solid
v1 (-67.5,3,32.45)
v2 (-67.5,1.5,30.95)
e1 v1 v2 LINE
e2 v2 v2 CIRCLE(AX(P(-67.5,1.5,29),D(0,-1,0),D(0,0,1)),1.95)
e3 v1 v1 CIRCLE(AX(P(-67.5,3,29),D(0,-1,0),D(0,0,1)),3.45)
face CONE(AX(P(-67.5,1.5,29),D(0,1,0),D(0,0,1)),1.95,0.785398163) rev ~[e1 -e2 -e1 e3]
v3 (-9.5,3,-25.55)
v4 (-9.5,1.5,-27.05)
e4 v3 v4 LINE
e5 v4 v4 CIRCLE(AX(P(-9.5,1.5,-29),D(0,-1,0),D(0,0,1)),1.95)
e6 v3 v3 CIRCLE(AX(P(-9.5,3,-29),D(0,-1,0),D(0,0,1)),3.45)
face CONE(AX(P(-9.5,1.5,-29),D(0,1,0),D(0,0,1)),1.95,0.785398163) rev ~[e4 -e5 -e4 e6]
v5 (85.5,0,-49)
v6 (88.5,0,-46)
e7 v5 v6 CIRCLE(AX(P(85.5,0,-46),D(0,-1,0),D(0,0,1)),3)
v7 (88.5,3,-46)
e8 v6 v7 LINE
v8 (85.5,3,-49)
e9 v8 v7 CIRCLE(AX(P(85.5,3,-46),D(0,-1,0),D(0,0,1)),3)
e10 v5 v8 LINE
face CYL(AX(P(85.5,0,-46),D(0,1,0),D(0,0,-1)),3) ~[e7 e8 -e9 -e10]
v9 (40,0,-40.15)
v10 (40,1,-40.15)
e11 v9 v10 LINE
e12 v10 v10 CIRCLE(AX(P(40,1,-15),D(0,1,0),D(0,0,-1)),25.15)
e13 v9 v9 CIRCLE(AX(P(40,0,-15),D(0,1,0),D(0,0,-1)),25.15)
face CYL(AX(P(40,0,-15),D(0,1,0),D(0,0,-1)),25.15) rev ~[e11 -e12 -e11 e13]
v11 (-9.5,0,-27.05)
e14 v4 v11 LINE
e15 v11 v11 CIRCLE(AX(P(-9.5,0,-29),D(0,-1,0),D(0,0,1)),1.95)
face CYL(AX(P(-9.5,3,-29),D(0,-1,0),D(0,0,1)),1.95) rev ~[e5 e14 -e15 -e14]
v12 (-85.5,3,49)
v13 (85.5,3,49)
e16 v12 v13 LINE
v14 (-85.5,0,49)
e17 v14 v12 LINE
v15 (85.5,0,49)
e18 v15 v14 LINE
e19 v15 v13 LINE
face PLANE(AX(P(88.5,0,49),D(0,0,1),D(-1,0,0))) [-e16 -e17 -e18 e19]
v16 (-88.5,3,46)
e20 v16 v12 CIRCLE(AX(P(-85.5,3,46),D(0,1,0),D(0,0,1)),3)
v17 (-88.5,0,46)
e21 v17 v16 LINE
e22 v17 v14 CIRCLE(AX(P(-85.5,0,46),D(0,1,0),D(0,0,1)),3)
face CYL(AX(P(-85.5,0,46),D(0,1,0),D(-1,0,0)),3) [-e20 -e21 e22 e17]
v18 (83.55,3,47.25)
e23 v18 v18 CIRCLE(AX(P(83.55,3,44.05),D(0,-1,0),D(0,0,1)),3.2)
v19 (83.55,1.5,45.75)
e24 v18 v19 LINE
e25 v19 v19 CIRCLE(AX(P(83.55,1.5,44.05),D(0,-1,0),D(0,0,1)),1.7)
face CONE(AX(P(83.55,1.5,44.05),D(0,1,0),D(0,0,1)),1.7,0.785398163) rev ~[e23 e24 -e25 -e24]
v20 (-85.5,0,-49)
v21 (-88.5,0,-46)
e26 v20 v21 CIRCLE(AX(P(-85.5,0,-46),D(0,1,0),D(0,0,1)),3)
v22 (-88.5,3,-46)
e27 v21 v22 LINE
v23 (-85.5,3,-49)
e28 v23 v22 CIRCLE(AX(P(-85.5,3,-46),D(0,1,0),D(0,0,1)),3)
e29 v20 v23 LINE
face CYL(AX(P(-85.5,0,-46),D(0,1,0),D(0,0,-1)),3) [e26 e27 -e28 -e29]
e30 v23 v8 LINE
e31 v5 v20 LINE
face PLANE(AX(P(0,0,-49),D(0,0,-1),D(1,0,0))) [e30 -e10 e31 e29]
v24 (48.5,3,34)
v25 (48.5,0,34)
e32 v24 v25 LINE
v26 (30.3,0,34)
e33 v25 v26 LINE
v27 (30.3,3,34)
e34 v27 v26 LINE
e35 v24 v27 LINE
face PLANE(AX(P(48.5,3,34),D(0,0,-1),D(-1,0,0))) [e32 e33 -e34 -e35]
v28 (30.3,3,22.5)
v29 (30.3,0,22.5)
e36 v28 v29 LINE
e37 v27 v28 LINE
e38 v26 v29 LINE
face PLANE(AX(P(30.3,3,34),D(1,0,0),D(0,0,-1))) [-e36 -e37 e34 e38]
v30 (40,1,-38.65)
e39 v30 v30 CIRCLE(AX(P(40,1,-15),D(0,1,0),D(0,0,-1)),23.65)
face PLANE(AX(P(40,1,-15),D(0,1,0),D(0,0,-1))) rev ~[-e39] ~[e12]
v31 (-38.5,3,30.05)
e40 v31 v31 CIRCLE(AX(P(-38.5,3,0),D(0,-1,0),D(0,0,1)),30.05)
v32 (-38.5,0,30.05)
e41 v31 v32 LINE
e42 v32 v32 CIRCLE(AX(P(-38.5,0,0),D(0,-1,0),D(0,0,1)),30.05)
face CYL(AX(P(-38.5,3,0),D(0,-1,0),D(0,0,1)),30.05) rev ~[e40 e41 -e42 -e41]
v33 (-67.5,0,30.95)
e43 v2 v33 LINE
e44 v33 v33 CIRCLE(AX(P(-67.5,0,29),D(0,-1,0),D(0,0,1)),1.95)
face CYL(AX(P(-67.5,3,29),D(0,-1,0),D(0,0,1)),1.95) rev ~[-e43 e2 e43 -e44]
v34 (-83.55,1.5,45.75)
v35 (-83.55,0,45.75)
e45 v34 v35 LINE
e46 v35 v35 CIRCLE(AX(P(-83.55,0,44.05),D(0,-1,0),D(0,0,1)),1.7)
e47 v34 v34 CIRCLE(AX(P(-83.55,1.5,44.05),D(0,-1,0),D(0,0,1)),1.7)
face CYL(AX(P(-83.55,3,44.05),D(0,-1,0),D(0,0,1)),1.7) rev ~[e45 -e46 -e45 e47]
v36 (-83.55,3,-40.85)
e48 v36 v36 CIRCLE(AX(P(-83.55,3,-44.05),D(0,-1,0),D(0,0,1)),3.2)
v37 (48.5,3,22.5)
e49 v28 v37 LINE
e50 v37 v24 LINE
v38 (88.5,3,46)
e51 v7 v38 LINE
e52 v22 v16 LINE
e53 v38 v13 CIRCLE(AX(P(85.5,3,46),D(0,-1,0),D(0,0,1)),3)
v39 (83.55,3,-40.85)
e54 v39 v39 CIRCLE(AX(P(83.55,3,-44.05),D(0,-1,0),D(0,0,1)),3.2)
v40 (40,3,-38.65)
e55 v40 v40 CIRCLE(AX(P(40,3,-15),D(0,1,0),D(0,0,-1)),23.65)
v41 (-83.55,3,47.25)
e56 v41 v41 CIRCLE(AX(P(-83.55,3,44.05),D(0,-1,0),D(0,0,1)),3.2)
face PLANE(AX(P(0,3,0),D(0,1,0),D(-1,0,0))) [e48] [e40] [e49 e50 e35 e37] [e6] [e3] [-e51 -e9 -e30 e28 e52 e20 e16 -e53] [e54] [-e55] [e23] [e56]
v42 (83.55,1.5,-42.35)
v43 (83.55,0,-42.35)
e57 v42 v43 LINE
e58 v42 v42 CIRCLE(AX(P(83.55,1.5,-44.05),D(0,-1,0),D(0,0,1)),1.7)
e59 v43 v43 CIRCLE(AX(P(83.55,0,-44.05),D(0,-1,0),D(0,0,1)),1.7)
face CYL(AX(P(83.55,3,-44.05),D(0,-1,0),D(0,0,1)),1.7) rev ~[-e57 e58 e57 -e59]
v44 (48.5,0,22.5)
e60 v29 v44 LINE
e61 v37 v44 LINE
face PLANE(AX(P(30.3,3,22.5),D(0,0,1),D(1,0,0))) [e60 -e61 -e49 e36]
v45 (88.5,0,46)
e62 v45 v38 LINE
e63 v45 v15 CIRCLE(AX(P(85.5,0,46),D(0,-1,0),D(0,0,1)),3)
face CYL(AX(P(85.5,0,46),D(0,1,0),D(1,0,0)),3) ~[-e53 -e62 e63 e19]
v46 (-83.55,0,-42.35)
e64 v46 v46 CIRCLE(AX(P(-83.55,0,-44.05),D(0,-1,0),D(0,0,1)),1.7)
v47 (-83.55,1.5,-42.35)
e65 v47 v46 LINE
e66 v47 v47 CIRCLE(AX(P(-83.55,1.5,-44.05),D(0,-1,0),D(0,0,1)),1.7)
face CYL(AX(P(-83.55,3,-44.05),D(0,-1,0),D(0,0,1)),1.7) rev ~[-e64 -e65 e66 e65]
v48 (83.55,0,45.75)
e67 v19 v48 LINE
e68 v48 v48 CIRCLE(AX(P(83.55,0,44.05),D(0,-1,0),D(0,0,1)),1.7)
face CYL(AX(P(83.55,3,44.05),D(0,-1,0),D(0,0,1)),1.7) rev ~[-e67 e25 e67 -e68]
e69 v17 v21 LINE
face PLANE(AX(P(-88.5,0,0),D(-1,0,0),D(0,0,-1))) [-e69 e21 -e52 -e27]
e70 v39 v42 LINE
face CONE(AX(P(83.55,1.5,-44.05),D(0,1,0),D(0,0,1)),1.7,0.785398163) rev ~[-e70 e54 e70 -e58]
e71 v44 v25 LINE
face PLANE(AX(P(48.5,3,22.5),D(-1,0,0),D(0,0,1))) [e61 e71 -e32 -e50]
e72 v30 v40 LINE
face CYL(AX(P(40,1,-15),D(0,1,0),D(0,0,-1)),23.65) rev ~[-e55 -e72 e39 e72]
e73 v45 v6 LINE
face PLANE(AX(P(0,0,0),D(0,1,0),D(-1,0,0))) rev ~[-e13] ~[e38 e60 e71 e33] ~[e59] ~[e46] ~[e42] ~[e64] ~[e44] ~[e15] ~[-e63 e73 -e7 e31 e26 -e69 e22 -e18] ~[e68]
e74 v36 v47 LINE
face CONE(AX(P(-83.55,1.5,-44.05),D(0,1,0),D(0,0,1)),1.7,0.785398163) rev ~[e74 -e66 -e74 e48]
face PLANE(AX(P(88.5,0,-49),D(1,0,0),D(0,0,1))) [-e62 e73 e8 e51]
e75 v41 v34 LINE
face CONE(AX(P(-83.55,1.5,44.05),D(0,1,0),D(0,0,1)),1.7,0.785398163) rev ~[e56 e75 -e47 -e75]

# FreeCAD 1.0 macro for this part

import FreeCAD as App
import Part
import Sketcher

V = App.Vector
Q = App.Units.Quantity


def edges_at(feature, points):
    """Names of the edges that pass closest to the given points."""
    edges = feature.Shape.Edges
    near = lambda p: min(range(len(edges)), key=lambda i: edges[i].distToShape(Part.Vertex(*p))[0])
    return sorted({f"Edge{near(p) + 1}" for p in points})

doc = App.newDocument("Part")
body = doc.addObject("PartDesign::Body", "Body")

# Sketch on XZ plane
sketch1 = body.newObject("Sketcher::SketchObject", "Sketch")
sketch1.AttachmentSupport = (doc.getObject("XZ_Plane"), [""])
sketch1.MapMode = "FlatFace"
sketch1.addGeometry(Part.LineSegment(V(88, -49, 0), V(-88, -49, 0)), False)
sketch1.addGeometry(Part.LineSegment(V(-88, -49, 0), V(-88, 49, 0)), False)
sketch1.addGeometry(Part.LineSegment(V(-88, 49, 0), V(88, 49, 0)), False)
sketch1.addGeometry(Part.LineSegment(V(88, 49, 0), V(88, -49, 0)), False)
sketch1.addConstraint(Sketcher.Constraint("Coincident", 0, 2, 1, 1))
sketch1.addConstraint(Sketcher.Constraint("Coincident", 1, 2, 2, 1))
sketch1.addConstraint(Sketcher.Constraint("Coincident", 2, 2, 3, 1))
sketch1.addConstraint(Sketcher.Constraint("Coincident", 3, 2, 0, 1))
sketch1.addConstraint(Sketcher.Constraint("Horizontal", 0))
sketch1.addConstraint(Sketcher.Constraint("Vertical", 1))
sketch1.addConstraint(Sketcher.Constraint("Horizontal", 2))
sketch1.addConstraint(Sketcher.Constraint("Vertical", 3))
sketch1.addConstraint(Sketcher.Constraint("Symmetric", 0, 2, 2, 2, -1, 1))
sketch1.addConstraint(Sketcher.Constraint("DistanceX", 0, 2, 0, 1, Q("177 mm")))
sketch1.addConstraint(Sketcher.Constraint("DistanceY", 1, 1, 1, 2, Q("98 mm")))
pad1 = body.newObject("PartDesign::Pad", "Pad")
pad1.Profile = sketch1
pad1.Length = 3
pad1.Reversed = True

# Sketch on XZ plane
sketch2 = body.newObject("Sketcher::SketchObject", "Sketch001")
sketch2.AttachmentSupport = (doc.getObject("XZ_Plane"), [""])
sketch2.MapMode = "FlatFace"
sketch2.AttachmentOffset = App.Placement(V(0, 0, -3), App.Rotation())
sketch2.addGeometry(Part.Circle(V(-83.5, -44, 0), V(0, 0, 1), 1.7), False)
sketch2.addGeometry(Part.Circle(V(-83.5, 44, 0), V(0, 0, 1), 1.7), False)
sketch2.addGeometry(Part.Circle(V(83.5, 44, 0), V(0, 0, 1), 1.7), False)
sketch2.addGeometry(Part.Circle(V(83.5, -44, 0), V(0, 0, 1), 1.7), False)
sketch2.addConstraint(Sketcher.Constraint("Equal", 0, 1))
sketch2.addConstraint(Sketcher.Constraint("Equal", 1, 2))
sketch2.addConstraint(Sketcher.Constraint("Equal", 2, 3))
sketch2.addConstraint(Sketcher.Constraint("Symmetric", 0, 3, 2, 3, -1, 1))
sketch2.addConstraint(Sketcher.Constraint("Symmetric", 1, 3, 3, 3, -1, 1))
sketch2.addConstraint(Sketcher.Constraint("Symmetric", 1, 3, 2, 3, -2))
sketch2.addConstraint(Sketcher.Constraint("Diameter", 0, Q("3.4 mm")))
sketch2.addConstraint(Sketcher.Constraint("DistanceY", 0, 3, 1, 3, Q("88.1 mm")))
sketch2.addConstraint(Sketcher.Constraint("DistanceX", 1, 3, 2, 3, Q("167.1 mm")))
doc.recompute()
hole = body.newObject("PartDesign::Hole", "Hole")
hole.Profile = sketch2
hole.ThreadType = "None"
hole.Diameter = 3.4
hole.DepthType = "ThroughAll"
hole.Reversed = True
doc.recompute()

fillet = body.newObject("PartDesign::Fillet", "Fillet")
fillet.Base = (hole, edges_at(hole, [
    (88.5, 1.5, 49),
    (88.5, 1.5, -49),
    (-88.5, 1.5, 49),
    (-88.5, 1.5, -49),
]))
fillet.Radius = 3

# Sketch on XZ plane
sketch3 = body.newObject("Sketcher::SketchObject", "Sketch002")
sketch3.AttachmentSupport = (doc.getObject("XZ_Plane"), [""])
sketch3.MapMode = "FlatFace"
sketch3.AttachmentOffset = App.Placement(V(0, 0, -3), App.Rotation())
sketch3.addGeometry(Part.Circle(V(-38, 0, 0), V(0, 0, 1), 30), False)
sketch3.addConstraint(Sketcher.Constraint("PointOnObject", 0, 3, -1))
sketch3.addConstraint(Sketcher.Constraint("Diameter", 0, Q("60.1 mm")))
sketch3.addConstraint(Sketcher.Constraint("DistanceX", 0, 3, -1, 1, Q("38.5 mm")))
doc.recompute()
hole2 = body.newObject("PartDesign::Hole", "Hole001")
hole2.Profile = sketch3
hole2.ThreadType = "None"
hole2.Diameter = 60.1
hole2.DepthType = "ThroughAll"
hole2.Reversed = True

# Sketch on XZ plane
sketch4 = body.newObject("Sketcher::SketchObject", "Sketch003")
sketch4.AttachmentSupport = (doc.getObject("XZ_Plane"), [""])
sketch4.MapMode = "FlatFace"
sketch4.addGeometry(Part.Circle(V(40, -15, 0), V(0, 0, 1), 24), False)
sketch4.addConstraint(Sketcher.Constraint("Diameter", 0, Q("47.3 mm")))
sketch4.addConstraint(Sketcher.Constraint("DistanceX", -1, 1, 0, 3, Q("40 mm")))
sketch4.addConstraint(Sketcher.Constraint("DistanceY", 0, 3, -1, 1, Q("15 mm")))
doc.recompute()
hole3 = body.newObject("PartDesign::Hole", "Hole002")
hole3.Profile = sketch4
hole3.ThreadType = "None"
hole3.Diameter = 47.3
hole3.DepthType = "ThroughAll"
hole3.HoleCutType = "Counterbore"
hole3.HoleCutDiameter = 50.3
hole3.HoleCutDepth = 1

# Sketch on XZ plane
sketch5 = body.newObject("Sketcher::SketchObject", "Sketch004")
sketch5.AttachmentSupport = (doc.getObject("XZ_Plane"), [""])
sketch5.MapMode = "FlatFace"
sketch5.AttachmentOffset = App.Placement(V(0, 0, -3), App.Rotation())
sketch5.addGeometry(Part.LineSegment(V(48, 22, 0), V(30, 22, 0)), False)
sketch5.addGeometry(Part.LineSegment(V(30, 22, 0), V(30, 34, 0)), False)
sketch5.addGeometry(Part.LineSegment(V(30, 34, 0), V(48, 34, 0)), False)
sketch5.addGeometry(Part.LineSegment(V(48, 34, 0), V(48, 22, 0)), False)
sketch5.addConstraint(Sketcher.Constraint("Coincident", 0, 2, 1, 1))
sketch5.addConstraint(Sketcher.Constraint("Coincident", 1, 2, 2, 1))
sketch5.addConstraint(Sketcher.Constraint("Coincident", 2, 2, 3, 1))
sketch5.addConstraint(Sketcher.Constraint("Coincident", 3, 2, 0, 1))
sketch5.addConstraint(Sketcher.Constraint("Horizontal", 0))
sketch5.addConstraint(Sketcher.Constraint("Vertical", 1))
sketch5.addConstraint(Sketcher.Constraint("Horizontal", 2))
sketch5.addConstraint(Sketcher.Constraint("Vertical", 3))
sketch5.addConstraint(Sketcher.Constraint("DistanceX", 0, 2, 0, 1, Q("18.2 mm")))
sketch5.addConstraint(Sketcher.Constraint("DistanceY", 1, 1, 1, 2, Q("11.5 mm")))
sketch5.addConstraint(Sketcher.Constraint("DistanceY", -1, 1, 1, 2, Q("34 mm")))
sketch5.addConstraint(Sketcher.Constraint("DistanceX", -1, 1, 0, 2, Q("30.3 mm")))
pocket1 = body.newObject("PartDesign::Pocket", "Pocket")
pocket1.Profile = sketch5
pocket1.Length = 3
pocket1.Reversed = True

# Sketch on XZ plane
sketch6 = body.newObject("Sketcher::SketchObject", "Sketch005")
sketch6.AttachmentSupport = (doc.getObject("XZ_Plane"), [""])
sketch6.MapMode = "FlatFace"
sketch6.AttachmentOffset = App.Placement(V(0, 0, -3), App.Rotation())
sketch6.addGeometry(Part.Circle(V(-67.5, 29, 0), V(0, 0, 1), 1.9), False)
sketch6.addGeometry(Part.Circle(V(-9.5, -29, 0), V(0, 0, 1), 1.9), False)
sketch6.addConstraint(Sketcher.Constraint("Equal", 0, 1))
sketch6.addConstraint(Sketcher.Constraint("Diameter", 0, Q("3.9 mm")))
sketch6.addConstraint(Sketcher.Constraint("DistanceY", -1, 1, 0, 3, Q("29 mm")))
sketch6.addConstraint(Sketcher.Constraint("DistanceY", 1, 3, -1, 1, Q("29 mm")))
sketch6.addConstraint(Sketcher.Constraint("DistanceX", 0, 3, 1, 3, Q("58 mm")))
sketch6.addConstraint(Sketcher.Constraint("DistanceX", 0, 3, -1, 1, Q("67.5 mm")))
doc.recompute()
hole4 = body.newObject("PartDesign::Hole", "Hole003")
hole4.Profile = sketch6
hole4.ThreadType = "None"
hole4.Diameter = 3.9
hole4.DepthType = "ThroughAll"
hole4.Reversed = True
doc.recompute()

chamfer = body.newObject("PartDesign::Chamfer", "Chamfer")
chamfer.Base = (hole4, edges_at(hole4, [
    (83.55, 3, -45.75),
    (-83.55, 3, -45.75),
    (83.55, 3, 42.35),
    (-83.55, 3, 42.35),
    (-9.5, 3, -30.95),
    (-67.5, 3, 27.05),
]))
chamfer.Size = 1.5

doc.recompute()
